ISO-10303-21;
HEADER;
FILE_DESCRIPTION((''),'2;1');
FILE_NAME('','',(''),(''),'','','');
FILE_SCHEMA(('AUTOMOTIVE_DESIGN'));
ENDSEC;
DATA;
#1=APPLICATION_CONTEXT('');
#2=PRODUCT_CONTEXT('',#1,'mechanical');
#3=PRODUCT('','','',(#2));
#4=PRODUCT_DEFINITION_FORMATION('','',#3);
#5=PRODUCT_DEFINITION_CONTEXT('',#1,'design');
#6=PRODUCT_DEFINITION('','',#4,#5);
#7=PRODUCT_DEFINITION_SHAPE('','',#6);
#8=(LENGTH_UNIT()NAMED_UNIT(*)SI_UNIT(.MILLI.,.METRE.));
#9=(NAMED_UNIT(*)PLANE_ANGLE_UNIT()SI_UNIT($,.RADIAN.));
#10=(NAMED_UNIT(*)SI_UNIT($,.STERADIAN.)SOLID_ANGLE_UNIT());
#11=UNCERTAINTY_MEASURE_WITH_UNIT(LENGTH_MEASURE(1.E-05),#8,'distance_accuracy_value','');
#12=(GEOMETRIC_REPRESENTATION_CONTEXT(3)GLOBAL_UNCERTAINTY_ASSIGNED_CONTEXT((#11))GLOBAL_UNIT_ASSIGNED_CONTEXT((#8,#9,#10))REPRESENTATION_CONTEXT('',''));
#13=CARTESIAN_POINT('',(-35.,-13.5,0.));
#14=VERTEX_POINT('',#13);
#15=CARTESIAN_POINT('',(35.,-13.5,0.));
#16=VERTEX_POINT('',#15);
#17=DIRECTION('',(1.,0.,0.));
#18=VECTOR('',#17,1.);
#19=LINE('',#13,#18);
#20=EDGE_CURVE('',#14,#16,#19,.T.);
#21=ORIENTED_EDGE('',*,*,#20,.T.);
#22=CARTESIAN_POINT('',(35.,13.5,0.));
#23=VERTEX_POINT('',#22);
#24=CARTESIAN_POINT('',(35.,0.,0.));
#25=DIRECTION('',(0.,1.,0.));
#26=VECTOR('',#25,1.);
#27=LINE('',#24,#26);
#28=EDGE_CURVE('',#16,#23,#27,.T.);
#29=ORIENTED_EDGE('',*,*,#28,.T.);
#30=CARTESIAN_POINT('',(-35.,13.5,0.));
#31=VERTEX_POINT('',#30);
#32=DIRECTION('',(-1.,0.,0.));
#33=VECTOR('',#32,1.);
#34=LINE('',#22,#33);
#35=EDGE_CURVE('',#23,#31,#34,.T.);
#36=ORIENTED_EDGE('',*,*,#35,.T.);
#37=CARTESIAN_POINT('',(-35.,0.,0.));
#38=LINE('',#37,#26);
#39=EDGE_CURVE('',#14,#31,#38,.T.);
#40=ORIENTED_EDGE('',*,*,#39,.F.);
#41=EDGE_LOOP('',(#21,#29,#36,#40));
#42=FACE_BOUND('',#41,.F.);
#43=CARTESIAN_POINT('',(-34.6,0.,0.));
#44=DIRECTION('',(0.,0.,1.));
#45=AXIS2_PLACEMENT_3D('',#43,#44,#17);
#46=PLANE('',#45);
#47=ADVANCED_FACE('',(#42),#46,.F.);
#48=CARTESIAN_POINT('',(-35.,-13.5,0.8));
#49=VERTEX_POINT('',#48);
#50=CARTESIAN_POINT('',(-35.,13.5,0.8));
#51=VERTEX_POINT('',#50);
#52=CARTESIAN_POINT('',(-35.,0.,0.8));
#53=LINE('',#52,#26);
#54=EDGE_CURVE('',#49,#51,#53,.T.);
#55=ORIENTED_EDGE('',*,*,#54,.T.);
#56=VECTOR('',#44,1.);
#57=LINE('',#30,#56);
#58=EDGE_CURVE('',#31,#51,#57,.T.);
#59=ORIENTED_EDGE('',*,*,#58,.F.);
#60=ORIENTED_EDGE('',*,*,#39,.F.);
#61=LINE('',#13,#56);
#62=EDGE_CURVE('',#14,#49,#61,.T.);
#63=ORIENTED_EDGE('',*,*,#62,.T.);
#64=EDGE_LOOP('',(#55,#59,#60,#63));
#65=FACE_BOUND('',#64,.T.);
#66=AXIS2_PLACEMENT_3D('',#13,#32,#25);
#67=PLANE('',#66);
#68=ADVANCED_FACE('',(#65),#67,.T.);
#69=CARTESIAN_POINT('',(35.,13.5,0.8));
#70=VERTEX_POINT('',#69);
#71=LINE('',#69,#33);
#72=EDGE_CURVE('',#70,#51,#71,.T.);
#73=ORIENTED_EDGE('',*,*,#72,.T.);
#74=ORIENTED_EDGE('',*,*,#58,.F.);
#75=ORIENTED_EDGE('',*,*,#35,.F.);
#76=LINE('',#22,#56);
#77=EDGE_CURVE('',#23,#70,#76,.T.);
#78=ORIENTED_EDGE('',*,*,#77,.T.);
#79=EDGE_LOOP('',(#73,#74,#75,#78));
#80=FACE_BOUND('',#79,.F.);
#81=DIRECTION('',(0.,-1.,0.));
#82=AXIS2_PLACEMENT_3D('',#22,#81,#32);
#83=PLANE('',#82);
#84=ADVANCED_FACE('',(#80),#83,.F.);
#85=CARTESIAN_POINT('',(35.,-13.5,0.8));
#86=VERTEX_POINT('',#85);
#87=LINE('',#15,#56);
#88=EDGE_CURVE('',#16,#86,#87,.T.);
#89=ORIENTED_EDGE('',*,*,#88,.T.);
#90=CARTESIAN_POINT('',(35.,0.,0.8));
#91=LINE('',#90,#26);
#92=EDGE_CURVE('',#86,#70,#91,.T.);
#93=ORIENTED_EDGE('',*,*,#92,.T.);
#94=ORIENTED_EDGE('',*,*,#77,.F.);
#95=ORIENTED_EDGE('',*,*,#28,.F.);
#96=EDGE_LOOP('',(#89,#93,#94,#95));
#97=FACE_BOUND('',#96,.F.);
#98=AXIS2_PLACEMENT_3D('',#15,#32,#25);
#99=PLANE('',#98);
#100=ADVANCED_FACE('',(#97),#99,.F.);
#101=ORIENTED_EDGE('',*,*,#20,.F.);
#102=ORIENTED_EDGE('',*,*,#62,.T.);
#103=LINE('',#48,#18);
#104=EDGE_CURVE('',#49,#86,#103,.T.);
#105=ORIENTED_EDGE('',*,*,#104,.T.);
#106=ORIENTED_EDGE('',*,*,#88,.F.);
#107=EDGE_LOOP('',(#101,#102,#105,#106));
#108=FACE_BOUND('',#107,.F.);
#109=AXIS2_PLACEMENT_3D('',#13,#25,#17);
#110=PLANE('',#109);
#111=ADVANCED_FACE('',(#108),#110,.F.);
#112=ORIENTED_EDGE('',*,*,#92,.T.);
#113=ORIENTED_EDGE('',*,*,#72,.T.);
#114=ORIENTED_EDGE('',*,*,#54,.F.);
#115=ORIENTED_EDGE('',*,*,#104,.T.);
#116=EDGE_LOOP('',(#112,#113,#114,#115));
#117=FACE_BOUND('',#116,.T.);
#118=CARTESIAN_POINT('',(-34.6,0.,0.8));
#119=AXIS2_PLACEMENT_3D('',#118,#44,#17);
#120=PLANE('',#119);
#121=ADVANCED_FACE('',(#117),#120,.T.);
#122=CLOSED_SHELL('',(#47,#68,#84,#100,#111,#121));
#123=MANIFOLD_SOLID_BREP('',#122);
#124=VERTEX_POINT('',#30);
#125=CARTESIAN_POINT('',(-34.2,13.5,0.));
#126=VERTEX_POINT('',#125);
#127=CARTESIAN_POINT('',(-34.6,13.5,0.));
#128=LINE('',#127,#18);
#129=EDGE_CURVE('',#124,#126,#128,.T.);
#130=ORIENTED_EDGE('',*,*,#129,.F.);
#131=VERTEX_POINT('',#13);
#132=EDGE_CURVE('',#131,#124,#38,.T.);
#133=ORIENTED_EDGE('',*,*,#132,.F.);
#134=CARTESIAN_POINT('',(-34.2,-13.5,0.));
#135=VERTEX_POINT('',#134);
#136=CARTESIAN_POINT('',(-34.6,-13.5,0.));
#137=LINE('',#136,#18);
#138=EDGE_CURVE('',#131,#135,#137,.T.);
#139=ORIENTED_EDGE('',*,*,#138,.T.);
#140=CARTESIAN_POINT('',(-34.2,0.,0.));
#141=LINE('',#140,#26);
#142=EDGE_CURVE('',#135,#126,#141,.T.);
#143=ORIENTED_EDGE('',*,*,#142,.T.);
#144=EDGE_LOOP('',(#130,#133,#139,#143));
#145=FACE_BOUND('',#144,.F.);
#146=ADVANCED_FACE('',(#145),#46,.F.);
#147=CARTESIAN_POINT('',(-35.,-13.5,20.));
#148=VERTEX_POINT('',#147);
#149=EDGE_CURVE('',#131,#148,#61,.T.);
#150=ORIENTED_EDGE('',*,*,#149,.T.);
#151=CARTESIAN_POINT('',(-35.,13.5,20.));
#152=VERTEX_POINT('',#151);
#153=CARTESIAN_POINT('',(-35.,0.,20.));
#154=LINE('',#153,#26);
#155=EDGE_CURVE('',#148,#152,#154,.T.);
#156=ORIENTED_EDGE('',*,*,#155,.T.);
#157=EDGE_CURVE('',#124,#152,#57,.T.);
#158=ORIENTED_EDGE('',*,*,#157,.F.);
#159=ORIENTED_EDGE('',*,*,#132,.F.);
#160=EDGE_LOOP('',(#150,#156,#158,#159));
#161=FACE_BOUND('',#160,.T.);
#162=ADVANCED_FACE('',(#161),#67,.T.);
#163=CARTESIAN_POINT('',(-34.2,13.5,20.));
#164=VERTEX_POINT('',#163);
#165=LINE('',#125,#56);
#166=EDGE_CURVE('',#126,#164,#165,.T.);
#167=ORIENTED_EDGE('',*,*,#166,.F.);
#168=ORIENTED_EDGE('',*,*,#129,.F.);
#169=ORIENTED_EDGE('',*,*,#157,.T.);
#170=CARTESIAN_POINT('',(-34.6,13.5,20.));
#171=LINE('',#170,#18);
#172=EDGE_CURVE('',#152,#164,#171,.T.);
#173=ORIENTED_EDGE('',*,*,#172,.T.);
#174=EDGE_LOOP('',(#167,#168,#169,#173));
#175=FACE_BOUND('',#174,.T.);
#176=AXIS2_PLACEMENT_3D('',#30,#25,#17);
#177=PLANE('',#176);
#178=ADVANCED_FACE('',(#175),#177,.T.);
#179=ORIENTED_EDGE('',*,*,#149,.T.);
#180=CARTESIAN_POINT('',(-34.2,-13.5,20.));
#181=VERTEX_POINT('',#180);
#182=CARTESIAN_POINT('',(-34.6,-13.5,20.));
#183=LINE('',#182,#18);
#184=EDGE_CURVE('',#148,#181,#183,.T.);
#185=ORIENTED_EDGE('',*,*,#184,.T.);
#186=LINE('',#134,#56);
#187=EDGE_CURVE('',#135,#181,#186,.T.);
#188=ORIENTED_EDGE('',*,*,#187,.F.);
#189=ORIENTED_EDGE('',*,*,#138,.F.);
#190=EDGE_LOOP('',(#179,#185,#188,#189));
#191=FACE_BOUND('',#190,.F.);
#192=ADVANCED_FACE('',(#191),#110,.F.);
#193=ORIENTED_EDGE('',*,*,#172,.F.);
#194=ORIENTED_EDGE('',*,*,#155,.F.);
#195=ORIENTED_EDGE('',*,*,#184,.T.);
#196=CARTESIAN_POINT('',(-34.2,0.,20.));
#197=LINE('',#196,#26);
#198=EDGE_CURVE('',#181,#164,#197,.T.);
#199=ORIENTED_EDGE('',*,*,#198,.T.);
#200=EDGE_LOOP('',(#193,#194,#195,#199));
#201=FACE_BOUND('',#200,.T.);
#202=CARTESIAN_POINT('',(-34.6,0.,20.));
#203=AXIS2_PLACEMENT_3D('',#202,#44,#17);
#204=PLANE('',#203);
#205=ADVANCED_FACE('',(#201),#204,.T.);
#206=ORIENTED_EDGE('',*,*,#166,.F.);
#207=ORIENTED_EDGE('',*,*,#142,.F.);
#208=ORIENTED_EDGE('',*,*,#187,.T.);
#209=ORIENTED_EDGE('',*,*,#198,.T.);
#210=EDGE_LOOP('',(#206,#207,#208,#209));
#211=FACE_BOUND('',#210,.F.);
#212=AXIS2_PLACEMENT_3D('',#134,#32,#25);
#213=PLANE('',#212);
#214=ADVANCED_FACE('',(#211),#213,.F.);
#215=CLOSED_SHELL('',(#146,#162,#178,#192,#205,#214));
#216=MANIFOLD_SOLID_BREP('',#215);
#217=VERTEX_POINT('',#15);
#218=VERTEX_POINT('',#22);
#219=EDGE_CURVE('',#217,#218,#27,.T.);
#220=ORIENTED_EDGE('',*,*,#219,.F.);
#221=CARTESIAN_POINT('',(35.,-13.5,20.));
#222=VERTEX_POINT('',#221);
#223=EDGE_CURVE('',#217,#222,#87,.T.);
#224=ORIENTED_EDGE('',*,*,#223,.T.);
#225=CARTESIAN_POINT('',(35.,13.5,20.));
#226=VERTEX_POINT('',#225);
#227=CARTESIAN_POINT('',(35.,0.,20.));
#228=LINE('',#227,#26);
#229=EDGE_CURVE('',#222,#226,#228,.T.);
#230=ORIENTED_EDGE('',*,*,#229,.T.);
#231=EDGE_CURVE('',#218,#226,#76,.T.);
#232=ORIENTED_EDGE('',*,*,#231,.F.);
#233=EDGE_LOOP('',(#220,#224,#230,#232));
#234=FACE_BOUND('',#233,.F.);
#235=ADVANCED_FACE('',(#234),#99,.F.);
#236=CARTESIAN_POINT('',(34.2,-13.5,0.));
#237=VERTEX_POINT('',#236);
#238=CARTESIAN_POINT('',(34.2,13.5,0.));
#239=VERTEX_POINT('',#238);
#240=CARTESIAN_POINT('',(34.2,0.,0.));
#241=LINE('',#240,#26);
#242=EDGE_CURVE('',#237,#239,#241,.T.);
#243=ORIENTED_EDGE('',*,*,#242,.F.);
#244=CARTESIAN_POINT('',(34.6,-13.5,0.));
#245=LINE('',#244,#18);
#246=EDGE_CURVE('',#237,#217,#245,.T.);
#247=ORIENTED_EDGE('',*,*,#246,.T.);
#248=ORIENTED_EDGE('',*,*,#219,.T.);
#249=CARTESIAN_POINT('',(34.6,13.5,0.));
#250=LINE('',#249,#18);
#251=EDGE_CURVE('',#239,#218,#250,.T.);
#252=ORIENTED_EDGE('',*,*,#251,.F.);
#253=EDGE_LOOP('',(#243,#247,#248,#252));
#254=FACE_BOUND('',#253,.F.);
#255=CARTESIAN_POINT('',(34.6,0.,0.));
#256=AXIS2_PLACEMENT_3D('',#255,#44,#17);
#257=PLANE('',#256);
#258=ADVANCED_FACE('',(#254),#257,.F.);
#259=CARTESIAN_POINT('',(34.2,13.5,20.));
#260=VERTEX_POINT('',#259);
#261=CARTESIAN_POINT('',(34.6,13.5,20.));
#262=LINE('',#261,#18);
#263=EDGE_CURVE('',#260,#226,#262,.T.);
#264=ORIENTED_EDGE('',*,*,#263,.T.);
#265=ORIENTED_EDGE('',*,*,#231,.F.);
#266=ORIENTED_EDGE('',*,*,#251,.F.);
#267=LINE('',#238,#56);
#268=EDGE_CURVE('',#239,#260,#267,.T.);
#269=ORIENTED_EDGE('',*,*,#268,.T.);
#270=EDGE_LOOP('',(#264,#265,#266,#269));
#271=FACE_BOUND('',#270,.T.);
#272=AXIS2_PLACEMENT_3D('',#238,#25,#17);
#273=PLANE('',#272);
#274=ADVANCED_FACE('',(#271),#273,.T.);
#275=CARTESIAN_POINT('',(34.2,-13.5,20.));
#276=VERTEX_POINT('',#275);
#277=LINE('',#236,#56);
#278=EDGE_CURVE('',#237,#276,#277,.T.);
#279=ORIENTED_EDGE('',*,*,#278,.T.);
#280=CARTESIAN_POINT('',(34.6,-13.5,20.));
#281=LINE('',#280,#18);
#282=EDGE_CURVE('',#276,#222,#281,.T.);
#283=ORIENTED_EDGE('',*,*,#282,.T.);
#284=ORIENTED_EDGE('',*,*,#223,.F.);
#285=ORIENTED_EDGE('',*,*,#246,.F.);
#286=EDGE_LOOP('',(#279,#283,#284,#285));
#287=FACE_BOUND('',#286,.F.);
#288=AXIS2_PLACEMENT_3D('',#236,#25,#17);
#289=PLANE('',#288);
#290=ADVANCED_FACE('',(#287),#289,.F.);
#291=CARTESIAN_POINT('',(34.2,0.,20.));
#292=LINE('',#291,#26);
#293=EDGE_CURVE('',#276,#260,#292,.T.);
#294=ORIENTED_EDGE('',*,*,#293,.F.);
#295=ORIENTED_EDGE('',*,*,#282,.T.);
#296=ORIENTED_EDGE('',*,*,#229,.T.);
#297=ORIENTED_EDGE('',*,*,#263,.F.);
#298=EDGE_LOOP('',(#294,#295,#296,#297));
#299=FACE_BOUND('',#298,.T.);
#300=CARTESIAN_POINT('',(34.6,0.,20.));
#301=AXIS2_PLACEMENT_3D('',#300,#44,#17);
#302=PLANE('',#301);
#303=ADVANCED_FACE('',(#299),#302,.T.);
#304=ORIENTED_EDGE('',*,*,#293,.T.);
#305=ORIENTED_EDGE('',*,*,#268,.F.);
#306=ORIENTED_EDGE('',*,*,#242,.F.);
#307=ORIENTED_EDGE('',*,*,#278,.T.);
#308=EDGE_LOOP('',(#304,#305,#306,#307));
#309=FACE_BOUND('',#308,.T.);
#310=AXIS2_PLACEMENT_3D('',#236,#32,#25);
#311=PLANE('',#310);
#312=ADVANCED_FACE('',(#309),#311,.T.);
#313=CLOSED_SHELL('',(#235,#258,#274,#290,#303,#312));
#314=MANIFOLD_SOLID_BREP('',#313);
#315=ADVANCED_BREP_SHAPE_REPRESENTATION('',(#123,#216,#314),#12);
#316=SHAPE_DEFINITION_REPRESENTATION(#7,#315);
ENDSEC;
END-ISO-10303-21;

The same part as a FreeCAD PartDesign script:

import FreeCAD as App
import Part
import Sketcher
Q = App.Units.Quantity

doc = App.newDocument("Part")
body = doc.addObject("PartDesign::Body", "Body")
body.AllowCompound = True

# Sketch on XY plane
sketch1 = body.newObject("Sketcher::SketchObject", "Sketch")
sketch1.AttachmentSupport = (doc.getObject("XY_Plane"), [""])
sketch1.MapMode = "FlatFace"
sketch1.addGeometry([
    Part.LineSegment(App.Vector(-35, 13.5, 0), App.Vector(-35, -13.5, 0)),  # 0
    Part.LineSegment(App.Vector(-35, -13.5, 0), App.Vector(-34.2, -13.5, 0)),  # 1
    Part.LineSegment(App.Vector(-34.2, -13.5, 0), App.Vector(-34.2, 13.5, 0)),  # 2
    Part.LineSegment(App.Vector(-34.2, 13.5, 0), App.Vector(-35, 13.5, 0)),  # 3
    Part.LineSegment(App.Vector(34.2, 13.5, 0), App.Vector(34.2, -13.5, 0)),  # 4
    Part.LineSegment(App.Vector(34.2, -13.5, 0), App.Vector(35, -13.5, 0)),  # 5
    Part.LineSegment(App.Vector(35, -13.5, 0), App.Vector(35, 13.5, 0)),  # 6
    Part.LineSegment(App.Vector(35, 13.5, 0), App.Vector(34.2, 13.5, 0)),  # 7
], False)
sketch1.addConstraint([
    Sketcher.Constraint("Coincident", 0, 2, 1, 1),
    Sketcher.Constraint("Coincident", 1, 2, 2, 1),
    Sketcher.Constraint("Coincident", 2, 2, 3, 1),
    Sketcher.Constraint("Coincident", 3, 2, 0, 1),
    Sketcher.Constraint("Coincident", 4, 2, 5, 1),
    Sketcher.Constraint("Coincident", 5, 2, 6, 1),
    Sketcher.Constraint("Coincident", 6, 2, 7, 1),
    Sketcher.Constraint("Coincident", 7, 2, 4, 1),
    Sketcher.Constraint("Vertical", 0),
    Sketcher.Constraint("Horizontal", 1),
    Sketcher.Constraint("Vertical", 2),
    Sketcher.Constraint("Horizontal", 3),
    Sketcher.Constraint("Vertical", 4),
    Sketcher.Constraint("Horizontal", 5),
    Sketcher.Constraint("Vertical", 6),
    Sketcher.Constraint("Horizontal", 7),
    Sketcher.Constraint("Symmetric", 2, 2, 4, 2, -1, 1),
    Sketcher.Constraint("Symmetric", 0, 2, 6, 2, -1, 1),
    Sketcher.Constraint("Horizontal", 1, 2, 4, 2),
    Sketcher.Constraint("DistanceY", 0, 2, 0, 1, Q("27 mm")),
    Sketcher.Constraint("DistanceX", 1, 1, 1, 2, Q("0.8 mm")),
    Sketcher.Constraint("DistanceX", 0, 2, -1, 1, Q("35 mm")),
])
pad1 = body.newObject("PartDesign::Pad", "Pad")
pad1.Profile = sketch1
pad1.Length = 20
body2 = doc.addObject("PartDesign::Body", "Body001")

# Sketch on XY plane
sketch2 = body2.newObject("Sketcher::SketchObject", "Sketch001")
sketch2.AttachmentSupport = (doc.getObject("XY_Plane001"), [""])
sketch2.MapMode = "FlatFace"
sketch2.addGeometry([
    Part.LineSegment(App.Vector(-35, 14, 0), App.Vector(-35, -14, 0)),
    Part.LineSegment(App.Vector(-35, -14, 0), App.Vector(35, -14, 0)),
    Part.LineSegment(App.Vector(35, -14, 0), App.Vector(35, 14, 0)),
    Part.LineSegment(App.Vector(35, 14, 0), App.Vector(-35, 14, 0)),
], False)
sketch2.addConstraint([
    Sketcher.Constraint("Coincident", 0, 2, 1, 1),
    Sketcher.Constraint("Coincident", 1, 2, 2, 1),
    Sketcher.Constraint("Coincident", 2, 2, 3, 1),
    Sketcher.Constraint("Coincident", 3, 2, 0, 1),
    Sketcher.Constraint("Vertical", 0),
    Sketcher.Constraint("Horizontal", 1),
    Sketcher.Constraint("Vertical", 2),
    Sketcher.Constraint("Horizontal", 3),
    Sketcher.Constraint("Symmetric", 0, 2, 2, 2, -1, 1),
    Sketcher.Constraint("DistanceX", 1, 1, 1, 2, Q("70 mm")),
    Sketcher.Constraint("DistanceY", 0, 2, 0, 1, Q("27 mm")),
])
pad2 = body2.newObject("PartDesign::Pad", "Pad001")
pad2.Profile = sketch2
pad2.Length = 0.8

doc.recompute()
